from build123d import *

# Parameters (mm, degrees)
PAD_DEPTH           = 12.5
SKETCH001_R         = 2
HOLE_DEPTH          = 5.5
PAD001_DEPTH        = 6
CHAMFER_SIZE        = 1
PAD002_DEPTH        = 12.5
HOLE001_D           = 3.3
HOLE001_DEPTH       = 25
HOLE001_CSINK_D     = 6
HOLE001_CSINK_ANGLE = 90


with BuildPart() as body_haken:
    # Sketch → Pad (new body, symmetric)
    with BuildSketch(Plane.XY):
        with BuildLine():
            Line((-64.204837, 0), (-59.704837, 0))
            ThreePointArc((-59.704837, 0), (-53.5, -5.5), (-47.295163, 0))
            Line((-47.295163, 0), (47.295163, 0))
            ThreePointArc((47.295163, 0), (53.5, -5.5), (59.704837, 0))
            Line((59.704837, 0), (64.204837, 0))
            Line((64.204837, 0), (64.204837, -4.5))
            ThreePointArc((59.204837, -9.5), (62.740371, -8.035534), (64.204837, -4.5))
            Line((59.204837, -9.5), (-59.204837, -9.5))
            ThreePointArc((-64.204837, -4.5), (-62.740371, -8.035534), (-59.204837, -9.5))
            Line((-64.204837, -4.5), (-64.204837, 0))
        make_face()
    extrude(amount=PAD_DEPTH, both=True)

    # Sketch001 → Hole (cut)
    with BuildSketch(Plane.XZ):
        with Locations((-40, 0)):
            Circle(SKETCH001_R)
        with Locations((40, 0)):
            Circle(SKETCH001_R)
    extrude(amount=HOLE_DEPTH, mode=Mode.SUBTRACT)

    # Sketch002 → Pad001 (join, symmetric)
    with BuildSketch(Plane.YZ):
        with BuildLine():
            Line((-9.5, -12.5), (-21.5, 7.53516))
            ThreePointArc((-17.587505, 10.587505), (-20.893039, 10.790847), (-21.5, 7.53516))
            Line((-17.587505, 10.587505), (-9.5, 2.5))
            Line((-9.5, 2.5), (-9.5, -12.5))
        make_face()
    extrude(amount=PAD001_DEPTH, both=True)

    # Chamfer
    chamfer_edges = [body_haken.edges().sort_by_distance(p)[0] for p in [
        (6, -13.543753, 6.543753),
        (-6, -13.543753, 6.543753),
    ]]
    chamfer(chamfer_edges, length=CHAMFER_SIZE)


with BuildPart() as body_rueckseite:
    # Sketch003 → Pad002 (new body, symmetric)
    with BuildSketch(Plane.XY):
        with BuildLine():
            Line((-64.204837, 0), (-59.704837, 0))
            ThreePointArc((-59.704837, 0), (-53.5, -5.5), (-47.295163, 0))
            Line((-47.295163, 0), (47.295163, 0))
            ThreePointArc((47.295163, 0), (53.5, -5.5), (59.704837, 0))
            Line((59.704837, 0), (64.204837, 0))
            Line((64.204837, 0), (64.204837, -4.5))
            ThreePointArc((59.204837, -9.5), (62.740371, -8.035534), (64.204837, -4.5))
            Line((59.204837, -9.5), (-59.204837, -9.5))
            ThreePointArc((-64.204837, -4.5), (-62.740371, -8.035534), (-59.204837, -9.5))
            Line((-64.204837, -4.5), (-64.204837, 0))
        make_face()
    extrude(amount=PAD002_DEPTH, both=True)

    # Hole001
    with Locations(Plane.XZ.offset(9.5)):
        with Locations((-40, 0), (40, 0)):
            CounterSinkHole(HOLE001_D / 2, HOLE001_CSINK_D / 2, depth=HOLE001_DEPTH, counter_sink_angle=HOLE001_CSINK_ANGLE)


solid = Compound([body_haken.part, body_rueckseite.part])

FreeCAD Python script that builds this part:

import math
import FreeCAD as App
import Part
import Sketcher

V = App.Vector
Q = App.Units.Quantity


def edges_at(feature, points):
    """Names of the edges that pass closest to the given points."""
    edges = feature.Shape.Edges
    near = lambda p: min(range(len(edges)), key=lambda i: edges[i].distToShape(Part.Vertex(*p))[0])
    return sorted({f"Edge{near(p) + 1}" for p in points})

doc = App.newDocument("Part")
body = doc.addObject("PartDesign::Body", "Body")

# Sketch on XY plane
sketch1 = body.newObject("Sketcher::SketchObject", "Sketch")
sketch1.AttachmentSupport = (doc.getObject("XY_Plane"), [""])
sketch1.MapMode = "FlatFace"
sketch1.addGeometry([
    Part.LineSegment(V(-59.7, 0, 0), V(-64.2, 0, 0)),  # 0
    Part.LineSegment(V(-64.2, 0, 0), V(-64.2, -4.5, 0)),  # 1
    Part.ArcOfCircle(Part.Circle(V(-59.2, -4.5, 0), V(0, 0, 1), 5), math.radians(180), math.radians(270)),  # 2
    Part.LineSegment(V(-59.2, -9.5, 0), V(59.2, -9.5, 0)),  # 3
    Part.ArcOfCircle(Part.Circle(V(59.2, -4.5, 0), V(0, 0, 1), 5), math.radians(-90), math.radians(0)),  # 4
    Part.LineSegment(V(64.2, -4.5, 0), V(64.2, 0, 0)),  # 5
    Part.LineSegment(V(64.2, 0, 0), V(59.7, 0, 0)),  # 6
    Part.ArcOfCircle(Part.Circle(V(53.5, 0.8, 0), V(0, 0, 1), 6.3), math.radians(-173), math.radians(-7)),  # 7
    Part.LineSegment(V(47.3, 0, 0), V(-47.3, 0, 0)),  # 8
    Part.ArcOfCircle(Part.Circle(V(-53.5, 0.8, 0), V(0, 0, 1), 6.3), math.radians(-173), math.radians(-7)),  # 9
], False)
sketch1.addConstraint([
    Sketcher.Constraint("Coincident", 0, 2, 1, 1),
    Sketcher.Constraint("Tangent", 1, 2, 2, 1),
    Sketcher.Constraint("Tangent", 2, 2, 3, 1),
    Sketcher.Constraint("Tangent", 3, 2, 4, 1),
    Sketcher.Constraint("Tangent", 4, 2, 5, 1),
    Sketcher.Constraint("Coincident", 5, 2, 6, 1),
    Sketcher.Constraint("Coincident", 6, 2, 7, 2),
    Sketcher.Constraint("Coincident", 7, 1, 8, 1),
    Sketcher.Constraint("Coincident", 8, 2, 9, 2),
    Sketcher.Constraint("Coincident", 9, 1, 0, 1),
    Sketcher.Constraint("Horizontal", 0),
    Sketcher.Constraint("Vertical", 1),
    Sketcher.Constraint("Horizontal", 3),
    Sketcher.Constraint("Vertical", 5),
    Sketcher.Constraint("Horizontal", 6),
    Sketcher.Constraint("Horizontal", 8),
    Sketcher.Constraint("Equal", 2, 4),
    Sketcher.Constraint("Equal", 7, 9),
    Sketcher.Constraint("Symmetric", 0, 2, 5, 2, -1, 1),
    Sketcher.Constraint("Symmetric", 7, 1, 8, 2, -1, 1),
    Sketcher.Constraint("Symmetric", 6, 2, 9, 1, -2),
    Sketcher.Constraint("Equal", 6, 1),
    Sketcher.Constraint("Radius", 2, 5.0),
    Sketcher.Constraint("Radius", 7, 6.25),
    Sketcher.Constraint("DistanceX", 0, 2, 0, 1, 4.5),
    Sketcher.Constraint("DistanceX", 9, 3, 7, 3, 107.0),
    Sketcher.Constraint("DistanceY", -1, 1, 7, 3, 0.75),
])
pad1 = body.newObject("PartDesign::Pad", "Pad")
pad1.Profile = sketch1
pad1.Length = 25
pad1.Midplane = True

# Sketch on XZ plane
sketch2 = body.newObject("Sketcher::SketchObject", "Sketch001")
sketch2.AttachmentSupport = (doc.getObject("XZ_Plane"), [""])
sketch2.MapMode = "FlatFace"
sketch2.addGeometry([
    Part.Circle(V(-40, 0, 0), V(0, 0, 1), 2),
    Part.Circle(V(40, 0, 0), V(0, 0, 1), 2),
], False)
sketch2.addConstraint([
    Sketcher.Constraint("Equal", 0, 1),
    Sketcher.Constraint("Symmetric", 0, 3, 1, 3, -1, 1),
    Sketcher.Constraint("PointOnObject", 0, 3, -1),
    Sketcher.Constraint("Diameter", 0, 4.0),
    Sketcher.Constraint("DistanceX", 0, 3, -1, 1, 40.0),
])
pocket1 = body.newObject("PartDesign::Pocket", "Pocket")
pocket1.Profile = sketch2
pocket1.Length = 5.5
pocket1.Reversed = True

# Sketch on YZ plane
sketch3 = body.newObject("Sketcher::SketchObject", "Sketch002")
sketch3.AttachmentSupport = (doc.getObject("YZ_Plane"), [""])
sketch3.MapMode = "FlatFace"
sketch3.addGeometry([
    Part.LineSegment(V(-21.5, 7.5, 0), V(-9.5, -12.5, 0)),
    Part.LineSegment(V(-9.5, -12.5, 0), V(-9.5, 2.5, 0)),
    Part.LineSegment(V(-9.5, 2.5, 0), V(-17.6, 10.6, 0)),
    Part.ArcOfCircle(Part.Circle(V(-19.4, 8.8, 0), V(0, 0, 1), 2.5), math.radians(45), math.radians(211)),
], False)
sketch3.addConstraint([
    Sketcher.Constraint("Coincident", 0, 2, 1, 1),
    Sketcher.Constraint("Coincident", 1, 2, 2, 1),
    Sketcher.Constraint("Tangent", 2, 2, 3, 1),
    Sketcher.Constraint("Tangent", 3, 2, 0, 1),
    Sketcher.Constraint("Vertical", 1),
    Sketcher.Constraint("Radius", 3, 2.5),
    Sketcher.Constraint("DistanceY", 1, 1, 1, 2, 15.0),
    Sketcher.Constraint("Angle", 2, Q("135 deg")),
    Sketcher.Constraint("DistanceX", 3, 2, 1, 2, 12.0),
    Sketcher.Constraint("DistanceX", 0, 2, -1, 1, 9.5),
    Sketcher.Constraint("DistanceY", 0, 2, -1, 1, 12.5),
])
pad2 = body.newObject("PartDesign::Pad", "Pad001")
pad2.Profile = sketch3
pad2.Length = 12
pad2.Midplane = True
doc.recompute()

chamfer = body.newObject("PartDesign::Chamfer", "Chamfer")
chamfer.Base = (pad2, edges_at(pad2, [(6, -13.544, 6.544), (-6, -13.544, 6.544)]))
chamfer.Size = 1
body2 = doc.addObject("PartDesign::Body", "Body001")

# Sketch on XY plane
sketch4 = body2.newObject("Sketcher::SketchObject", "Sketch003")
sketch4.AttachmentSupport = (doc.getObject("XY_Plane001"), [""])
sketch4.MapMode = "FlatFace"
sketch4.addGeometry([
    Part.LineSegment(V(-59.7, 0, 0), V(-64.2, 0, 0)),  # 0
    Part.LineSegment(V(-64.2, 0, 0), V(-64.2, -4.5, 0)),  # 1
    Part.ArcOfCircle(Part.Circle(V(-59.2, -4.5, 0), V(0, 0, 1), 5), math.radians(180), math.radians(270)),  # 2
    Part.LineSegment(V(-59.2, -9.5, 0), V(59.2, -9.5, 0)),  # 3
    Part.ArcOfCircle(Part.Circle(V(59.2, -4.5, 0), V(0, 0, 1), 5), math.radians(-90), math.radians(0)),  # 4
    Part.LineSegment(V(64.2, -4.5, 0), V(64.2, 0, 0)),  # 5
    Part.LineSegment(V(64.2, 0, 0), V(59.7, 0, 0)),  # 6
    Part.ArcOfCircle(Part.Circle(V(53.5, 0.8, 0), V(0, 0, 1), 6.3), math.radians(-173), math.radians(-7)),  # 7
    Part.LineSegment(V(47.3, 0, 0), V(-47.3, 0, 0)),  # 8
    Part.ArcOfCircle(Part.Circle(V(-53.5, 0.8, 0), V(0, 0, 1), 6.3), math.radians(-173), math.radians(-7)),  # 9
], False)
sketch4.addConstraint([
    Sketcher.Constraint("Coincident", 0, 2, 1, 1),
    Sketcher.Constraint("Tangent", 1, 2, 2, 1),
    Sketcher.Constraint("Tangent", 2, 2, 3, 1),
    Sketcher.Constraint("Tangent", 3, 2, 4, 1),
    Sketcher.Constraint("Tangent", 4, 2, 5, 1),
    Sketcher.Constraint("Coincident", 5, 2, 6, 1),
    Sketcher.Constraint("Coincident", 6, 2, 7, 2),
    Sketcher.Constraint("Coincident", 7, 1, 8, 1),
    Sketcher.Constraint("Coincident", 8, 2, 9, 2),
    Sketcher.Constraint("Coincident", 9, 1, 0, 1),
    Sketcher.Constraint("Horizontal", 0),
    Sketcher.Constraint("Vertical", 1),
    Sketcher.Constraint("Horizontal", 3),
    Sketcher.Constraint("Vertical", 5),
    Sketcher.Constraint("Horizontal", 6),
    Sketcher.Constraint("Horizontal", 8),
    Sketcher.Constraint("Equal", 2, 4),
    Sketcher.Constraint("Equal", 7, 9),
    Sketcher.Constraint("Symmetric", 0, 2, 5, 2, -1, 1),
    Sketcher.Constraint("Symmetric", 7, 1, 8, 2, -1, 1),
    Sketcher.Constraint("Symmetric", 6, 2, 9, 1, -2),
    Sketcher.Constraint("Equal", 6, 1),
    Sketcher.Constraint("Radius", 2, 5.0),
    Sketcher.Constraint("Radius", 7, 6.25),
    Sketcher.Constraint("DistanceX", 0, 2, 0, 1, 4.5),
    Sketcher.Constraint("DistanceX", 9, 3, 7, 3, 107.0),
    Sketcher.Constraint("DistanceY", -1, 1, 7, 3, 0.75),
])
pad3 = body2.newObject("PartDesign::Pad", "Pad002")
pad3.Profile = sketch4
pad3.Length = 25
pad3.Midplane = True

# Sketch on XZ plane
sketch5 = body2.newObject("Sketcher::SketchObject", "Sketch004")
sketch5.AttachmentSupport = (doc.getObject("XZ_Plane001"), [""])
sketch5.MapMode = "FlatFace"
sketch5.AttachmentOffset = App.Placement(V(0, 0, 9.5), App.Rotation())
sketch5.addGeometry([
    Part.Circle(V(-40, 0, 0), V(0, 0, 1), 1.6),
    Part.Circle(V(40, 0, 0), V(0, 0, 1), 1.6),
], False)
sketch5.addConstraint([
    Sketcher.Constraint("Equal", 0, 1),
    Sketcher.Constraint("Symmetric", 0, 3, 1, 3, -1, 1),
    Sketcher.Constraint("PointOnObject", 0, 3, -1),
    Sketcher.Constraint("Diameter", 0, 3.3),
    Sketcher.Constraint("DistanceX", 0, 3, -1, 1, 40.0),
])
doc.recompute()
hole = body2.newObject("PartDesign::Hole", "Hole")
hole.Profile = sketch5
hole.ThreadType = "None"
hole.Diameter = 3.3
hole.DepthType = "Dimension"
hole.Depth = 25
hole.DrillPoint = "Flat"
hole.HoleCutType = "Countersink"
hole.HoleCutDiameter = 6
hole.HoleCutCountersinkAngle = 90

doc.recompute()
